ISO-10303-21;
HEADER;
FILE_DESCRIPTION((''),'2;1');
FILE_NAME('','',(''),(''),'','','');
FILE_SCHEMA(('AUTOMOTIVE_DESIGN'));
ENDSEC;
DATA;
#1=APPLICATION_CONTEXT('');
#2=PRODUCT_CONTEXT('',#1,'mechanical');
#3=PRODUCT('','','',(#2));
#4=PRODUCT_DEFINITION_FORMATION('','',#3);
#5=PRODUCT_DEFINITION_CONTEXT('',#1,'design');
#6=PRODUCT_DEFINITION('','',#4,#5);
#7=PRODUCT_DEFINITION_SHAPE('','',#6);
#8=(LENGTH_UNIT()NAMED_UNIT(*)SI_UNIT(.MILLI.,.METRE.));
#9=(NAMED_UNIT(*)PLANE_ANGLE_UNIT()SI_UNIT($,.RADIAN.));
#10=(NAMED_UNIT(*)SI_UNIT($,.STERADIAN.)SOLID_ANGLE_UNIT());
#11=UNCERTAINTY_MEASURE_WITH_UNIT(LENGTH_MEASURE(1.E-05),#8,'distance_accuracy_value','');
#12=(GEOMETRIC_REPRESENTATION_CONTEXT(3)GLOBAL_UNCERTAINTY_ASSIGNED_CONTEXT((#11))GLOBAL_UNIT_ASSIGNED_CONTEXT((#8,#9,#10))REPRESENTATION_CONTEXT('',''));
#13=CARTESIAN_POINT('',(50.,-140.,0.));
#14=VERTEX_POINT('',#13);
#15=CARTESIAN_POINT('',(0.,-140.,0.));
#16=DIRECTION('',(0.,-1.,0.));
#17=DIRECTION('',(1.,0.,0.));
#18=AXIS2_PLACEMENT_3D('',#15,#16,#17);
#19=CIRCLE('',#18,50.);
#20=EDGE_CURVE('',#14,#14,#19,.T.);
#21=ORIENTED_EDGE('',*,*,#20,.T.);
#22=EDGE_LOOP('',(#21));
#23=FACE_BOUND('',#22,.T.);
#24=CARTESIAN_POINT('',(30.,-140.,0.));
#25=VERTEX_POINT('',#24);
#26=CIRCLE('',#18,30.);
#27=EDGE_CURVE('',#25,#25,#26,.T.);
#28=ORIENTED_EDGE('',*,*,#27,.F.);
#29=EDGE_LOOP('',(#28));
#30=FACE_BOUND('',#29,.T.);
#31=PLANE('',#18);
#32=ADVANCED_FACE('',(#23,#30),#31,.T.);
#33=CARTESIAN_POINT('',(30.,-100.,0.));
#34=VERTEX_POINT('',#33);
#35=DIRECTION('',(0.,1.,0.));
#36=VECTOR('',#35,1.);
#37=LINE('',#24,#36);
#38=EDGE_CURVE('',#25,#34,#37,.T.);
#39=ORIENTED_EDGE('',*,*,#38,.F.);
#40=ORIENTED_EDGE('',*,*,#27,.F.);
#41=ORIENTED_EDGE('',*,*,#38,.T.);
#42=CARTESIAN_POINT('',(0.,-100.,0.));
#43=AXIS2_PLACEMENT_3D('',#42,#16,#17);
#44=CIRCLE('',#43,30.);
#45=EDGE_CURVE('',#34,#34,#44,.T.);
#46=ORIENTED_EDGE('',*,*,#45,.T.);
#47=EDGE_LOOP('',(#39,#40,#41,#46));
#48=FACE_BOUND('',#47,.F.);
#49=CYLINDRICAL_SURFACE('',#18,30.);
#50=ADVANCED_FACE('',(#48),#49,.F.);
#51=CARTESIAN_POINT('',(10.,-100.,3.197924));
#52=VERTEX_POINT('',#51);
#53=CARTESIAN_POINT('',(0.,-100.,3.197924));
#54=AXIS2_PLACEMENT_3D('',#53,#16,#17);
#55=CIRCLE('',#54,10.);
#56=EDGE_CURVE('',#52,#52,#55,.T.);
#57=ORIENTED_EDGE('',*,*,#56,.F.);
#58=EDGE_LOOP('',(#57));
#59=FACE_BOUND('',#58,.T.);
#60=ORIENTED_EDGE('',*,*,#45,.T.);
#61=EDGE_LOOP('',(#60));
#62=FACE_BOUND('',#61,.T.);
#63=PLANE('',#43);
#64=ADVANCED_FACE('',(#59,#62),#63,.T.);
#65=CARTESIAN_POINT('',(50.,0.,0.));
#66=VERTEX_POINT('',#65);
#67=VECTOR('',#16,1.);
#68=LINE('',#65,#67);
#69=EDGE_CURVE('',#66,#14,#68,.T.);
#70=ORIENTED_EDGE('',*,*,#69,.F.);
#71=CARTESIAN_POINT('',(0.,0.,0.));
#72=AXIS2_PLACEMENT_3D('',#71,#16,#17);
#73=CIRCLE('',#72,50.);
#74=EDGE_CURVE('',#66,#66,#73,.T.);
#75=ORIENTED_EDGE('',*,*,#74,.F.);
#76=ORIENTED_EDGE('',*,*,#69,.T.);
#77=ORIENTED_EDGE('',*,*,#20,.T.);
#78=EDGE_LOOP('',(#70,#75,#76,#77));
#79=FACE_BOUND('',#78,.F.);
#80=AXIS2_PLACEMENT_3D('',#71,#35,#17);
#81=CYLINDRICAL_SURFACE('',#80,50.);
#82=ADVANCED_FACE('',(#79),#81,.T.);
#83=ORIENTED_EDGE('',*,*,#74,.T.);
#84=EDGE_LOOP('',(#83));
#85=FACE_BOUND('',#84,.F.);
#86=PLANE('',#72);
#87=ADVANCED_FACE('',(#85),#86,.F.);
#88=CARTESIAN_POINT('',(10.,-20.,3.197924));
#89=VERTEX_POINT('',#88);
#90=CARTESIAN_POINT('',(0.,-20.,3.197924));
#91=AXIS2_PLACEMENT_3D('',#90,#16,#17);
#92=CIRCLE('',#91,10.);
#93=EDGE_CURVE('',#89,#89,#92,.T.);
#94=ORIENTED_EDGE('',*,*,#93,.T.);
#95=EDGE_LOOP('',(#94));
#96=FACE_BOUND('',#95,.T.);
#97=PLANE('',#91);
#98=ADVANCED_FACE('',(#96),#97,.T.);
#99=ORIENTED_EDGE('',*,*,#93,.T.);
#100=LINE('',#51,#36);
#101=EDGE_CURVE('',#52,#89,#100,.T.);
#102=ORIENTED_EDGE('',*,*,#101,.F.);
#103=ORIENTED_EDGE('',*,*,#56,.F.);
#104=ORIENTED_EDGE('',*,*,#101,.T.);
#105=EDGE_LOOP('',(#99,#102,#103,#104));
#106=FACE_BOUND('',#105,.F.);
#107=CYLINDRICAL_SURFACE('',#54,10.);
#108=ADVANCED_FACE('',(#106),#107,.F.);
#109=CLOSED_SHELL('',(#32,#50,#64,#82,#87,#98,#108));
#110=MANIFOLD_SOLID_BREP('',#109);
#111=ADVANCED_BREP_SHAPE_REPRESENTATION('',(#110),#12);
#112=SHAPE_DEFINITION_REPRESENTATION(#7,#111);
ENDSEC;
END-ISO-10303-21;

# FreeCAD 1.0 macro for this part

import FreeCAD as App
import Part
import Sketcher

doc = App.newDocument("Part")
body = doc.addObject("PartDesign::Body", "Body")

sketch1 = body.newObject("Sketcher::SketchObject", "Sketch")
sketch1.AttachmentSupport = (doc.getObject("XZ_Plane"), [""])
sketch1.MapMode = "FlatFace"
sketch1.addGeometry(Part.Circle(App.Vector(0, 0, 0), App.Vector(0, 0, 1), 50), False)
sketch1.addConstraint([
    Sketcher.Constraint("Coincident", 0, 3, -1, 1),
    Sketcher.Constraint("Diameter", 0, 100.0),
])
pad1 = body.newObject("PartDesign::Pad", "Pad")
pad1.Profile = sketch1
pad1.Length = 140

sketch2 = body.newObject("Sketcher::SketchObject", "Sketch001")
sketch2.AttachmentSupport = (doc.getObject("XZ_Plane"), [""])
sketch2.MapMode = "FlatFace"
sketch2.AttachmentOffset = App.Placement(App.Vector(0, 0, 140), App.Rotation())
sketch2.addGeometry(Part.Circle(App.Vector(0, 0, 0), App.Vector(0, 0, 1), 30), False)
sketch2.addConstraint([
    Sketcher.Constraint("Coincident", 0, 3, -1, 1),
    Sketcher.Constraint("Diameter", 0, 60.0),
])
pocket1 = body.newObject("PartDesign::Pocket", "Pocket")
pocket1.Profile = sketch2
pocket1.Length = 40

sketch3 = body.newObject("Sketcher::SketchObject", "Sketch002")
sketch3.AttachmentSupport = (doc.getObject("XZ_Plane"), [""])
sketch3.MapMode = "FlatFace"
sketch3.AttachmentOffset = App.Placement(App.Vector(0, 0, 100), App.Rotation())
sketch3.addGeometry(Part.Circle(App.Vector(0, 3, 0), App.Vector(0, 0, 1), 10), False)
sketch3.addConstraint([
    Sketcher.Constraint("PointOnObject", 0, 3, -2),
    Sketcher.Constraint("Diameter", 0, 20.0),
    Sketcher.Constraint("DistanceY", -1, 1, 0, 3, 3.197924),
])
pocket2 = body.newObject("PartDesign::Pocket", "Pocket001")
pocket2.Profile = sketch3
pocket2.Length = 80

doc.recompute()
